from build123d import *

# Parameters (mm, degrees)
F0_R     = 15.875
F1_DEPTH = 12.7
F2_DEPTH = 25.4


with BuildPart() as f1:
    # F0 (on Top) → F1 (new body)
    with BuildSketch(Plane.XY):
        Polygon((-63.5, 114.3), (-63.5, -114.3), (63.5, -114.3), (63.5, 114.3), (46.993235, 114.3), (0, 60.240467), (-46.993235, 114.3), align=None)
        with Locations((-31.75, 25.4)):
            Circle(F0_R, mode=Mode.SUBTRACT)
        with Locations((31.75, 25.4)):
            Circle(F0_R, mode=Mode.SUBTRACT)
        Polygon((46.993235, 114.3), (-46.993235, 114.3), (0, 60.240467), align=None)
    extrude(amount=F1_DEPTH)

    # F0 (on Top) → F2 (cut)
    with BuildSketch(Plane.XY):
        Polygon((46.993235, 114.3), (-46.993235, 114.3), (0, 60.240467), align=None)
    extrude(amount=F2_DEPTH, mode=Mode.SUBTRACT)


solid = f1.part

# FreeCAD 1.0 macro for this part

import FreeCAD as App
import Part
import Sketcher
from FreeCAD import Vector
Q = App.Units.Quantity


def add_polygon(sketch, points):
    """Adds a closed chain of lines whose ends are joined by coincident constraints."""
    first, n = sketch.GeometryCount, len(points)
    for a, b in zip(points, points[1:] + points[:1]):
        sketch.addGeometry(Part.LineSegment(App.Vector(*a, 0), App.Vector(*b, 0)), False)
    for i in range(n):
        sketch.addConstraint(Sketcher.Constraint("Coincident", first + i, 2, first + (i + 1) % n, 1))

doc = App.newDocument("Part")
body = doc.addObject("PartDesign::Body", "Body")

# Sketch on XY plane
sketch1 = body.newObject("Sketcher::SketchObject", "Sketch")
sketch1.AttachmentSupport = (doc.getObject("XY_Plane"), [""])
sketch1.MapMode = "FlatFace"
add_polygon(sketch1, [(-64, 114), (-64, -114), (64, -114), (64, 114)])  # lines 0-3
sketch1.addGeometry(Part.Circle(Vector(-32, 25, 0), Vector(0, 0, 1), 16), False)  # 4
sketch1.addGeometry(Part.Circle(Vector(32, 25, 0), Vector(0, 0, 1), 16), False)  # 5
sketch1.addConstraint([
    Sketcher.Constraint("Vertical", 0),
    Sketcher.Constraint("Horizontal", 1),
    Sketcher.Constraint("Vertical", 2),
    Sketcher.Constraint("Horizontal", 3),
    Sketcher.Constraint("Equal", 4, 5),
    Sketcher.Constraint("Symmetric", 0, 2, 2, 2, -1, 1),
    Sketcher.Constraint("Symmetric", 4, 3, 5, 3, -2),
    Sketcher.Constraint("Diameter", 4, Q("1.25 in")),
    Sketcher.Constraint("DistanceX", 1, 1, 1, 2, Q("5 in")),
    Sketcher.Constraint("DistanceY", 0, 2, 0, 1, Q("9 in")),
    Sketcher.Constraint("DistanceY", -1, 1, 4, 3, Q("1 in")),
    Sketcher.Constraint("DistanceX", 4, 3, 5, 3, Q("2.5 in")),
])
pad1 = body.newObject("PartDesign::Pad", "Pad")
pad1.Profile = sketch1
pad1.Length = Q("0.5 in")

# Sketch on XY plane
sketch2 = body.newObject("Sketcher::SketchObject", "Sketch001")
sketch2.AttachmentSupport = (doc.getObject("XY_Plane"), [""])
sketch2.MapMode = "FlatFace"
add_polygon(sketch2, [(47, 114), (-47, 114), (0, 60)])  # lines 0-2
sketch2.addConstraint([
    Sketcher.Constraint("Horizontal", 0),
    Sketcher.Constraint("PointOnObject", 1, 2, -2),
    Sketcher.Constraint("Equal", 1, 2),
    Sketcher.Constraint("Angle", 1, Q("-49 deg")),
    Sketcher.Constraint("DistanceY", -1, 1, 0, 2, Q("4.5 in")),
    Sketcher.Constraint("DistanceX", 0, 2, 0, 1, Q("93.98647 mm")),
])
pocket1 = body.newObject("PartDesign::Pocket", "Pocket")
pocket1.Profile = sketch2
pocket1.Length = Q("1 in")
pocket1.Reversed = True

doc.recompute()
